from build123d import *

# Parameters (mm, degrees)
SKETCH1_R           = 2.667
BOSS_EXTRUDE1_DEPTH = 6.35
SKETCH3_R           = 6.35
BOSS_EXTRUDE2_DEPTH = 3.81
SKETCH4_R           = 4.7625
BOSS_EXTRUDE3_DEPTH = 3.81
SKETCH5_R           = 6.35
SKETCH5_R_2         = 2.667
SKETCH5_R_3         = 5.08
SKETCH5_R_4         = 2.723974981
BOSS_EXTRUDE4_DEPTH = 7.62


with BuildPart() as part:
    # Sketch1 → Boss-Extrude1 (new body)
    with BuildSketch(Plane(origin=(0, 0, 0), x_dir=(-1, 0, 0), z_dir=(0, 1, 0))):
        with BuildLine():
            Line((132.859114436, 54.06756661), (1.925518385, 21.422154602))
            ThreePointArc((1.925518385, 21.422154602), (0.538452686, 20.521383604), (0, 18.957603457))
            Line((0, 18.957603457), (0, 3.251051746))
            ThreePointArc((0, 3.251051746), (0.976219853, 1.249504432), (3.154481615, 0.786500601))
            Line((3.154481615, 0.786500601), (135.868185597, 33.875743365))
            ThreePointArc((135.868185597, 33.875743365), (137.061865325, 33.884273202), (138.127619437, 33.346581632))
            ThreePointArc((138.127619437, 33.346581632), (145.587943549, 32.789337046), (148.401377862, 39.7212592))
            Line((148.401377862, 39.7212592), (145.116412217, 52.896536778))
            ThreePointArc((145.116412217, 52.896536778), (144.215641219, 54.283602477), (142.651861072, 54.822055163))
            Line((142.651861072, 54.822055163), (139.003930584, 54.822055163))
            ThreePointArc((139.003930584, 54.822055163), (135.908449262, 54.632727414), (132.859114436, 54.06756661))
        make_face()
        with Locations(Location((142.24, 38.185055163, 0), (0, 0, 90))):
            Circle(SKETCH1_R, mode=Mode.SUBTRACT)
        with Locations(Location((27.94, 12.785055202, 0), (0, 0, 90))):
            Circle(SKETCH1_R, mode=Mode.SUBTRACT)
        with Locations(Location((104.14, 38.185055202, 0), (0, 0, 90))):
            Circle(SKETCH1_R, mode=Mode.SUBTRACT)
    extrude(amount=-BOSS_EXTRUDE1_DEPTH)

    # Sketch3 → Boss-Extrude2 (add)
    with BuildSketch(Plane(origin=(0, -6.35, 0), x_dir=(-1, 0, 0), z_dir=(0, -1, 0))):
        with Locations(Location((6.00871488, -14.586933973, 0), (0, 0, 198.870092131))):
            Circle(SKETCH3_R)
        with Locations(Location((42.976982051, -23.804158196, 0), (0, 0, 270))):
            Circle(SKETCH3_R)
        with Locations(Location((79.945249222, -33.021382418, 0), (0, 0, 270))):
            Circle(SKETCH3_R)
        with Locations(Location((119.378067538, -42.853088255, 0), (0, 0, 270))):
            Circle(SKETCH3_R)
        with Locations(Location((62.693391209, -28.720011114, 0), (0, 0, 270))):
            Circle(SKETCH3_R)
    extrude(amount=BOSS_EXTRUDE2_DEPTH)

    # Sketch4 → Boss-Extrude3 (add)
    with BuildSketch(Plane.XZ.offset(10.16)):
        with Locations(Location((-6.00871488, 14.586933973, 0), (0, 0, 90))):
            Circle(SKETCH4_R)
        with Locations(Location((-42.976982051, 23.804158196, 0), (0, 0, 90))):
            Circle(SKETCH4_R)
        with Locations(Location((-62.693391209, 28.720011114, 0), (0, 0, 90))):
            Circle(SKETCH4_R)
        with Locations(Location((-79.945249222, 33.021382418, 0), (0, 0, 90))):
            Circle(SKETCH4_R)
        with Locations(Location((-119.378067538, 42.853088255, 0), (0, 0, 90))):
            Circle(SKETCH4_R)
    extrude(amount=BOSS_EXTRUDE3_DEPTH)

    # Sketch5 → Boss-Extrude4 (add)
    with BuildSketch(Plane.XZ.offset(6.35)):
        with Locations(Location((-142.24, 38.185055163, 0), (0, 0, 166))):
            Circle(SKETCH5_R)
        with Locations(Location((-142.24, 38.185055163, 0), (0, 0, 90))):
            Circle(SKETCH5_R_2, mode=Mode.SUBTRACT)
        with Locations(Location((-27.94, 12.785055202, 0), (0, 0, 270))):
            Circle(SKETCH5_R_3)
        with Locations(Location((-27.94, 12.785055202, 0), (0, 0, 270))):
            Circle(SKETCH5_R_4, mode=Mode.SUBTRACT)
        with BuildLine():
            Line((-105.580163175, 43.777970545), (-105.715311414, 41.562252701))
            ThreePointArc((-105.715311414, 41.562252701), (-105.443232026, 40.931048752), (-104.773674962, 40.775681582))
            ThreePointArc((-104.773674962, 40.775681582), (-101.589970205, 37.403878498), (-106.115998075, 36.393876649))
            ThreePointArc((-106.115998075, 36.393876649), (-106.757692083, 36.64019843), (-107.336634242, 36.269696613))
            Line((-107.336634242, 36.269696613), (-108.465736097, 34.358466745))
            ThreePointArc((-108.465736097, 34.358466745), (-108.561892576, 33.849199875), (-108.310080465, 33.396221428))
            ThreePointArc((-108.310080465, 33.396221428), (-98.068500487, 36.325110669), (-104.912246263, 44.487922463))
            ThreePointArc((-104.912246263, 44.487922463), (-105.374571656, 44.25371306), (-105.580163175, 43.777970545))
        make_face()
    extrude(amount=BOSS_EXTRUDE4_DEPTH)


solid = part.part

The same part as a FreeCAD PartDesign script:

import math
import FreeCAD as App
import Part
import Sketcher

V = App.Vector
Q = App.Units.Quantity

doc = App.newDocument("Part")
body = doc.addObject("PartDesign::Body", "Body")

sketch1 = doc.addObject("Sketcher::SketchObject", "Sketch")
body.addObject(sketch1)
sketch1.AttachmentSupport = (doc.XZ_Plane, [""])
sketch1.MapMode = "FlatFace"
sketch1.addGeometry([
    Part.LineSegment(V(-132.9, 54.1, 0), V(-1.9, 21.4, 0)),
    Part.ArcOfCircle(Part.Circle(V(-2.5, 19, 0), V(0, 0, 1), 2.5), math.radians(0), math.radians(76)),
    Part.LineSegment(V(0, 19, 0), V(0, 3.3, 0)),
    Part.ArcOfCircle(Part.Circle(V(-2.5, 3.3, 0), V(0, 0, 1), 2.5), math.radians(-104), math.radians(0)),
    Part.LineSegment(V(-3.2, 0.8, 0), V(-135.9, 33.9, 0)),
    Part.ArcOfCircle(Part.Circle(V(-136.5, 31.4, 0), V(0, 0, 1), 2.5), math.radians(76), math.radians(130)),
    Part.ArcOfCircle(Part.Circle(V(-142.2, 38.2, 0), V(0, 0, 1), 6.3), math.radians(166), math.radians(310)),
    Part.LineSegment(V(-148.4, 39.7, 0), V(-145.1, 52.9, 0)),
    Part.ArcOfCircle(Part.Circle(V(-142.7, 52.3, 0), V(0, 0, 1), 2.5), math.radians(90), math.radians(166)),
    Part.LineSegment(V(-142.7, 54.8, 0), V(-139, 54.8, 0)),
    Part.ArcOfCircle(Part.Circle(V(-139, 29.4, 0), V(0, 0, 1), 25.4), math.radians(76), math.radians(90)),
    Part.Circle(V(-27.9, 12.8, 0), V(0, 0, 1), 2.7),
    Part.Circle(V(-104.1, 38.2, 0), V(0, 0, 1), 2.7),
    Part.Circle(V(-142.2, 38.2, 0), V(0, 0, 1), 2.7),
], False)
sketch1.addConstraint([
    Sketcher.Constraint("Tangent", 0, 2, 1, 2),
    Sketcher.Constraint("Tangent", 1, 1, 2, 1),
    Sketcher.Constraint("Tangent", 2, 2, 3, 2),
    Sketcher.Constraint("Tangent", 3, 1, 4, 1),
    Sketcher.Constraint("Tangent", 4, 2, 5, 1),
    Sketcher.Constraint("Tangent", 5, 2, 6, 2),
    Sketcher.Constraint("Tangent", 6, 1, 7, 1),
    Sketcher.Constraint("Tangent", 7, 2, 8, 2),
    Sketcher.Constraint("Tangent", 8, 1, 9, 1),
    Sketcher.Constraint("Tangent", 9, 2, 10, 2),
    Sketcher.Constraint("Tangent", 10, 1, 0, 1),
    Sketcher.Constraint("Vertical", 2),
    Sketcher.Constraint("Horizontal", 9),
    Sketcher.Constraint("Coincident", 13, 3, 6, 3),
    Sketcher.Constraint("Equal", 1, 3),
    Sketcher.Constraint("Equal", 3, 5),
    Sketcher.Constraint("Equal", 5, 8),
    Sketcher.Constraint("Equal", 11, 12),
    Sketcher.Constraint("Equal", 12, 13),
    Sketcher.Constraint("PointOnObject", 1, 1, -2),
    Sketcher.Constraint("Parallel", 0, 4),
    Sketcher.Constraint("Perpendicular", 4, 7),
    Sketcher.Constraint("Horizontal", 6, 3, 12, 3),
    Sketcher.Constraint("Radius", 10, Q("1 in")),
    Sketcher.Constraint("Radius", 1, Q("0.1 in")),
    Sketcher.Constraint("Diameter", 11, Q("0.21 in")),
    Sketcher.Constraint("Radius", 6, Q("0.25 in")),
    Sketcher.Constraint("Angle", 0, Q("-14 deg")),
    Sketcher.Constraint("DistanceX", 11, 3, 1, 3, Q("1 in")),
    Sketcher.Constraint("DistanceY", 11, 3, 6, 3, Q("1 in")),
    Sketcher.Constraint("DistanceX", 12, 3, 11, 3, Q("3 in")),
    Sketcher.Constraint("DistanceX", 6, 3, -1, 1, Q("5.6 in")),
    Sketcher.Constraint("DistanceY", 6, 3, 8, 3, Q("0.555 in")),
    Sketcher.Constraint("DistanceX", 9, 1, 9, 2, Q("3.64793 mm")),
    Sketcher.Constraint("DistanceY", 2, 2, 2, 1, Q("15.706552 mm")),
    Sketcher.Constraint("DistanceY", -1, 1, 3, 1, Q("0.786501 mm")),
])
pad1 = doc.addObject("PartDesign::Pad", "Pad")
body.addObject(pad1)
pad1.Profile = sketch1
pad1.Length = Q("0.25 in")

sketch2 = doc.addObject("Sketcher::SketchObject", "Sketch001")
body.addObject(sketch2)
sketch2.AttachmentSupport = (doc.XZ_Plane, [""])
sketch2.MapMode = "FlatFace"
sketch2.AttachmentOffset = App.Placement(V(0, 0, 0.25 * 25.4), App.Rotation())
sketch2.addGeometry([
    Part.Circle(V(-6, 15, 0), V(0, 0, 1), 6),
    Part.Circle(V(-43, 24, 0), V(0, 0, 1), 6),
    Part.Circle(V(-80, 33, 0), V(0, 0, 1), 6),
    Part.Circle(V(-119, 43, 0), V(0, 0, 1), 6),
    Part.Circle(V(-63, 29, 0), V(0, 0, 1), 6),
], False)
sketch2.addConstraint([
    Sketcher.Constraint("Equal", 0, 1),
    Sketcher.Constraint("Equal", 1, 2),
    Sketcher.Constraint("Equal", 2, 3),
    Sketcher.Constraint("Equal", 3, 4),
    Sketcher.Constraint("Diameter", 0, Q("0.5 in")),
    Sketcher.Constraint("DistanceY", -1, 1, 1, 3, Q("23.804158 mm")),
    Sketcher.Constraint("DistanceX", 2, 3, -1, 1, Q("79.945249 mm")),
    Sketcher.Constraint("DistanceY", -1, 1, 3, 3, Q("42.853088 mm")),
    Sketcher.Constraint("DistanceX", 4, 3, -1, 1, Q("62.693391 mm")),
    Sketcher.Constraint("DistanceY", -1, 1, 4, 3, Q("28.720011 mm")),
    Sketcher.Constraint("DistanceY", 0, 3, 2, 3, Q("18.434448 mm")),
    Sketcher.Constraint("DistanceX", 3, 3, 2, 3, Q("39.432818 mm")),
    Sketcher.Constraint("DistanceY", 4, 3, 2, 3, Q("4.301371 mm")),
    Sketcher.Constraint("DistanceX", 4, 3, 1, 3, Q("19.716409 mm")),
    Sketcher.Constraint("DistanceX", 0, 3, -1, 1, Q("6.008715 mm")),
])
pad2 = doc.addObject("PartDesign::Pad", "Pad001")
body.addObject(pad2)
pad2.Profile = sketch2
pad2.Length = Q("0.15 in")

sketch3 = doc.addObject("Sketcher::SketchObject", "Sketch002")
body.addObject(sketch3)
sketch3.AttachmentSupport = (doc.XZ_Plane, [""])
sketch3.MapMode = "FlatFace"
sketch3.AttachmentOffset = App.Placement(V(0, 0, 0.4 * 25.4), App.Rotation())
sketch3.addGeometry([
    Part.Circle(V(-6, 14.6, 0), V(0, 0, 1), 4.8),
    Part.Circle(V(-43, 23.8, 0), V(0, 0, 1), 4.8),
    Part.Circle(V(-62.7, 28.7, 0), V(0, 0, 1), 4.8),
    Part.Circle(V(-79.9, 33, 0), V(0, 0, 1), 4.8),
    Part.Circle(V(-119.4, 42.9, 0), V(0, 0, 1), 4.8),
], False)
sketch3.addConstraint([
    Sketcher.Constraint("Equal", 0, 1),
    Sketcher.Constraint("Equal", 1, 2),
    Sketcher.Constraint("Equal", 2, 3),
    Sketcher.Constraint("Equal", 3, 4),
    Sketcher.Constraint("Diameter", 0, Q("0.375 in")),
    Sketcher.Constraint("DistanceY", -1, 1, 1, 3, Q("23.804158 mm")),
    Sketcher.Constraint("DistanceX", 2, 3, -1, 1, Q("62.693391 mm")),
    Sketcher.Constraint("DistanceY", -1, 1, 2, 3, Q("28.720011 mm")),
    Sketcher.Constraint("DistanceX", 3, 3, -1, 1, Q("79.945249 mm")),
    Sketcher.Constraint("DistanceY", -1, 1, 4, 3, Q("42.853088 mm")),
    Sketcher.Constraint("DistanceX", 2, 3, 1, 3, Q("19.716409 mm")),
    Sketcher.Constraint("DistanceY", 2, 3, 3, 3, Q("4.301371 mm")),
    Sketcher.Constraint("DistanceY", 0, 3, 3, 3, Q("18.434448 mm")),
    Sketcher.Constraint("DistanceX", 4, 3, 3, 3, Q("39.432818 mm")),
    Sketcher.Constraint("DistanceX", 0, 3, -1, 1, Q("6.008715 mm")),
])
pad3 = doc.addObject("PartDesign::Pad", "Pad002")
body.addObject(pad3)
pad3.Profile = sketch3
pad3.Length = Q("0.15 in")

sketch4 = doc.addObject("Sketcher::SketchObject", "Sketch003")
body.addObject(sketch4)
sketch4.AttachmentSupport = (doc.XZ_Plane, [""])
sketch4.MapMode = "FlatFace"
sketch4.AttachmentOffset = App.Placement(V(0, 0, 0.25 * 25.4), App.Rotation())
sketch4.addGeometry([
    Part.Circle(V(-142.2, 38.2, 0), V(0, 0, 1), 6.3),
    Part.Circle(V(-142.2, 38.2, 0), V(0, 0, 1), 2.7),
    Part.Circle(V(-27.9, 12.8, 0), V(0, 0, 1), 5.1),
    Part.Circle(V(-27.9, 12.8, 0), V(0, 0, 1), 2.7),
    Part.LineSegment(V(-105.6, 43.8, 0), V(-105.7, 41.6, 0)),
    Part.ArcOfCircle(Part.Circle(V(-105, 41.5, 0), V(0, 0, 1), 0.8), math.radians(177), math.radians(284)),
    Part.ArcOfCircle(Part.Circle(V(-104.1, 38.2, 0), V(0, 0, 1), 2.7), math.radians(-138), math.radians(104)),
    Part.ArcOfCircle(Part.Circle(V(-106.7, 35.9, 0), V(0, 0, 1), 0.8), math.radians(42), math.radians(149)),
    Part.LineSegment(V(-107.3, 36.3, 0), V(-108.5, 34.4, 0)),
    Part.ArcOfCircle(Part.Circle(V(-107.8, 34, 0), V(0, 0, 1), 0.8), math.radians(149), math.radians(229)),
    Part.ArcOfCircle(Part.Circle(V(-104.1, 38.2, 0), V(0, 0, 1), 6.3), math.radians(-131), math.radians(97)),
    Part.ArcOfCircle(Part.Circle(V(-104.8, 43.7, 0), V(0, 0, 1), 0.8), math.radians(97), math.radians(177)),
], False)
sketch4.addConstraint([
    Sketcher.Constraint("Tangent", 4, 2, 5, 1),
    Sketcher.Constraint("Tangent", 5, 2, 6, 2),
    Sketcher.Constraint("Tangent", 6, 1, 7, 1),
    Sketcher.Constraint("Tangent", 7, 2, 8, 1),
    Sketcher.Constraint("Tangent", 8, 2, 9, 1),
    Sketcher.Constraint("Tangent", 9, 2, 10, 1),
    Sketcher.Constraint("Tangent", 10, 2, 11, 1),
    Sketcher.Constraint("Tangent", 11, 2, 4, 1),
    Sketcher.Constraint("Coincident", 1, 3, 0, 3),
    Sketcher.Constraint("Coincident", 3, 3, 2, 3),
    Sketcher.Constraint("Coincident", 10, 3, 6, 3),
    Sketcher.Constraint("Equal", 1, 6),
    Sketcher.Constraint("Equal", 5, 7),
    Sketcher.Constraint("Equal", 7, 9),
    Sketcher.Constraint("Equal", 0, 10),
    Sketcher.Constraint("Equal", 9, 11),
    Sketcher.Constraint("Horizontal", 1, 3, 6, 3),
    Sketcher.Constraint("Equal", 4, 8),
    Sketcher.Constraint("Diameter", 0, Q("0.5 in")),
    Sketcher.Constraint("Diameter", 2, Q("0.4 in")),
    Sketcher.Constraint("Diameter", 1, Q("0.21 in")),
    Sketcher.Constraint("Radius", 5, Q("0.03 in")),
    Sketcher.Constraint("DistanceY", 2, 3, 0, 3, Q("1 in")),
    Sketcher.Constraint("DistanceX", 6, 3, 2, 3, Q("3 in")),
    Sketcher.Constraint("DistanceX", 0, 3, -1, 1, Q("5.6 in")),
    Sketcher.Constraint("DistanceX", 2, 3, -1, 1, Q("1.1 in")),
    Sketcher.Constraint("Diameter", 3, Q("5.44795 mm")),
    Sketcher.Constraint("DistanceX", 6, 1, -1, 1, Q("106.115998 mm")),
    Sketcher.Constraint("DistanceX", 9, 3, 7, 3, Q("1.129102 mm")),
    Sketcher.Constraint("DistanceX", 11, 3, 5, 2, Q("0.045902 mm")),
    Sketcher.Constraint("DistanceY", -1, 1, 5, 3, Q("41.515861 mm")),
])
pad4 = doc.addObject("PartDesign::Pad", "Pad003")
body.addObject(pad4)
pad4.Profile = sketch4
pad4.Length = Q("0.3 in")

doc.recompute()
